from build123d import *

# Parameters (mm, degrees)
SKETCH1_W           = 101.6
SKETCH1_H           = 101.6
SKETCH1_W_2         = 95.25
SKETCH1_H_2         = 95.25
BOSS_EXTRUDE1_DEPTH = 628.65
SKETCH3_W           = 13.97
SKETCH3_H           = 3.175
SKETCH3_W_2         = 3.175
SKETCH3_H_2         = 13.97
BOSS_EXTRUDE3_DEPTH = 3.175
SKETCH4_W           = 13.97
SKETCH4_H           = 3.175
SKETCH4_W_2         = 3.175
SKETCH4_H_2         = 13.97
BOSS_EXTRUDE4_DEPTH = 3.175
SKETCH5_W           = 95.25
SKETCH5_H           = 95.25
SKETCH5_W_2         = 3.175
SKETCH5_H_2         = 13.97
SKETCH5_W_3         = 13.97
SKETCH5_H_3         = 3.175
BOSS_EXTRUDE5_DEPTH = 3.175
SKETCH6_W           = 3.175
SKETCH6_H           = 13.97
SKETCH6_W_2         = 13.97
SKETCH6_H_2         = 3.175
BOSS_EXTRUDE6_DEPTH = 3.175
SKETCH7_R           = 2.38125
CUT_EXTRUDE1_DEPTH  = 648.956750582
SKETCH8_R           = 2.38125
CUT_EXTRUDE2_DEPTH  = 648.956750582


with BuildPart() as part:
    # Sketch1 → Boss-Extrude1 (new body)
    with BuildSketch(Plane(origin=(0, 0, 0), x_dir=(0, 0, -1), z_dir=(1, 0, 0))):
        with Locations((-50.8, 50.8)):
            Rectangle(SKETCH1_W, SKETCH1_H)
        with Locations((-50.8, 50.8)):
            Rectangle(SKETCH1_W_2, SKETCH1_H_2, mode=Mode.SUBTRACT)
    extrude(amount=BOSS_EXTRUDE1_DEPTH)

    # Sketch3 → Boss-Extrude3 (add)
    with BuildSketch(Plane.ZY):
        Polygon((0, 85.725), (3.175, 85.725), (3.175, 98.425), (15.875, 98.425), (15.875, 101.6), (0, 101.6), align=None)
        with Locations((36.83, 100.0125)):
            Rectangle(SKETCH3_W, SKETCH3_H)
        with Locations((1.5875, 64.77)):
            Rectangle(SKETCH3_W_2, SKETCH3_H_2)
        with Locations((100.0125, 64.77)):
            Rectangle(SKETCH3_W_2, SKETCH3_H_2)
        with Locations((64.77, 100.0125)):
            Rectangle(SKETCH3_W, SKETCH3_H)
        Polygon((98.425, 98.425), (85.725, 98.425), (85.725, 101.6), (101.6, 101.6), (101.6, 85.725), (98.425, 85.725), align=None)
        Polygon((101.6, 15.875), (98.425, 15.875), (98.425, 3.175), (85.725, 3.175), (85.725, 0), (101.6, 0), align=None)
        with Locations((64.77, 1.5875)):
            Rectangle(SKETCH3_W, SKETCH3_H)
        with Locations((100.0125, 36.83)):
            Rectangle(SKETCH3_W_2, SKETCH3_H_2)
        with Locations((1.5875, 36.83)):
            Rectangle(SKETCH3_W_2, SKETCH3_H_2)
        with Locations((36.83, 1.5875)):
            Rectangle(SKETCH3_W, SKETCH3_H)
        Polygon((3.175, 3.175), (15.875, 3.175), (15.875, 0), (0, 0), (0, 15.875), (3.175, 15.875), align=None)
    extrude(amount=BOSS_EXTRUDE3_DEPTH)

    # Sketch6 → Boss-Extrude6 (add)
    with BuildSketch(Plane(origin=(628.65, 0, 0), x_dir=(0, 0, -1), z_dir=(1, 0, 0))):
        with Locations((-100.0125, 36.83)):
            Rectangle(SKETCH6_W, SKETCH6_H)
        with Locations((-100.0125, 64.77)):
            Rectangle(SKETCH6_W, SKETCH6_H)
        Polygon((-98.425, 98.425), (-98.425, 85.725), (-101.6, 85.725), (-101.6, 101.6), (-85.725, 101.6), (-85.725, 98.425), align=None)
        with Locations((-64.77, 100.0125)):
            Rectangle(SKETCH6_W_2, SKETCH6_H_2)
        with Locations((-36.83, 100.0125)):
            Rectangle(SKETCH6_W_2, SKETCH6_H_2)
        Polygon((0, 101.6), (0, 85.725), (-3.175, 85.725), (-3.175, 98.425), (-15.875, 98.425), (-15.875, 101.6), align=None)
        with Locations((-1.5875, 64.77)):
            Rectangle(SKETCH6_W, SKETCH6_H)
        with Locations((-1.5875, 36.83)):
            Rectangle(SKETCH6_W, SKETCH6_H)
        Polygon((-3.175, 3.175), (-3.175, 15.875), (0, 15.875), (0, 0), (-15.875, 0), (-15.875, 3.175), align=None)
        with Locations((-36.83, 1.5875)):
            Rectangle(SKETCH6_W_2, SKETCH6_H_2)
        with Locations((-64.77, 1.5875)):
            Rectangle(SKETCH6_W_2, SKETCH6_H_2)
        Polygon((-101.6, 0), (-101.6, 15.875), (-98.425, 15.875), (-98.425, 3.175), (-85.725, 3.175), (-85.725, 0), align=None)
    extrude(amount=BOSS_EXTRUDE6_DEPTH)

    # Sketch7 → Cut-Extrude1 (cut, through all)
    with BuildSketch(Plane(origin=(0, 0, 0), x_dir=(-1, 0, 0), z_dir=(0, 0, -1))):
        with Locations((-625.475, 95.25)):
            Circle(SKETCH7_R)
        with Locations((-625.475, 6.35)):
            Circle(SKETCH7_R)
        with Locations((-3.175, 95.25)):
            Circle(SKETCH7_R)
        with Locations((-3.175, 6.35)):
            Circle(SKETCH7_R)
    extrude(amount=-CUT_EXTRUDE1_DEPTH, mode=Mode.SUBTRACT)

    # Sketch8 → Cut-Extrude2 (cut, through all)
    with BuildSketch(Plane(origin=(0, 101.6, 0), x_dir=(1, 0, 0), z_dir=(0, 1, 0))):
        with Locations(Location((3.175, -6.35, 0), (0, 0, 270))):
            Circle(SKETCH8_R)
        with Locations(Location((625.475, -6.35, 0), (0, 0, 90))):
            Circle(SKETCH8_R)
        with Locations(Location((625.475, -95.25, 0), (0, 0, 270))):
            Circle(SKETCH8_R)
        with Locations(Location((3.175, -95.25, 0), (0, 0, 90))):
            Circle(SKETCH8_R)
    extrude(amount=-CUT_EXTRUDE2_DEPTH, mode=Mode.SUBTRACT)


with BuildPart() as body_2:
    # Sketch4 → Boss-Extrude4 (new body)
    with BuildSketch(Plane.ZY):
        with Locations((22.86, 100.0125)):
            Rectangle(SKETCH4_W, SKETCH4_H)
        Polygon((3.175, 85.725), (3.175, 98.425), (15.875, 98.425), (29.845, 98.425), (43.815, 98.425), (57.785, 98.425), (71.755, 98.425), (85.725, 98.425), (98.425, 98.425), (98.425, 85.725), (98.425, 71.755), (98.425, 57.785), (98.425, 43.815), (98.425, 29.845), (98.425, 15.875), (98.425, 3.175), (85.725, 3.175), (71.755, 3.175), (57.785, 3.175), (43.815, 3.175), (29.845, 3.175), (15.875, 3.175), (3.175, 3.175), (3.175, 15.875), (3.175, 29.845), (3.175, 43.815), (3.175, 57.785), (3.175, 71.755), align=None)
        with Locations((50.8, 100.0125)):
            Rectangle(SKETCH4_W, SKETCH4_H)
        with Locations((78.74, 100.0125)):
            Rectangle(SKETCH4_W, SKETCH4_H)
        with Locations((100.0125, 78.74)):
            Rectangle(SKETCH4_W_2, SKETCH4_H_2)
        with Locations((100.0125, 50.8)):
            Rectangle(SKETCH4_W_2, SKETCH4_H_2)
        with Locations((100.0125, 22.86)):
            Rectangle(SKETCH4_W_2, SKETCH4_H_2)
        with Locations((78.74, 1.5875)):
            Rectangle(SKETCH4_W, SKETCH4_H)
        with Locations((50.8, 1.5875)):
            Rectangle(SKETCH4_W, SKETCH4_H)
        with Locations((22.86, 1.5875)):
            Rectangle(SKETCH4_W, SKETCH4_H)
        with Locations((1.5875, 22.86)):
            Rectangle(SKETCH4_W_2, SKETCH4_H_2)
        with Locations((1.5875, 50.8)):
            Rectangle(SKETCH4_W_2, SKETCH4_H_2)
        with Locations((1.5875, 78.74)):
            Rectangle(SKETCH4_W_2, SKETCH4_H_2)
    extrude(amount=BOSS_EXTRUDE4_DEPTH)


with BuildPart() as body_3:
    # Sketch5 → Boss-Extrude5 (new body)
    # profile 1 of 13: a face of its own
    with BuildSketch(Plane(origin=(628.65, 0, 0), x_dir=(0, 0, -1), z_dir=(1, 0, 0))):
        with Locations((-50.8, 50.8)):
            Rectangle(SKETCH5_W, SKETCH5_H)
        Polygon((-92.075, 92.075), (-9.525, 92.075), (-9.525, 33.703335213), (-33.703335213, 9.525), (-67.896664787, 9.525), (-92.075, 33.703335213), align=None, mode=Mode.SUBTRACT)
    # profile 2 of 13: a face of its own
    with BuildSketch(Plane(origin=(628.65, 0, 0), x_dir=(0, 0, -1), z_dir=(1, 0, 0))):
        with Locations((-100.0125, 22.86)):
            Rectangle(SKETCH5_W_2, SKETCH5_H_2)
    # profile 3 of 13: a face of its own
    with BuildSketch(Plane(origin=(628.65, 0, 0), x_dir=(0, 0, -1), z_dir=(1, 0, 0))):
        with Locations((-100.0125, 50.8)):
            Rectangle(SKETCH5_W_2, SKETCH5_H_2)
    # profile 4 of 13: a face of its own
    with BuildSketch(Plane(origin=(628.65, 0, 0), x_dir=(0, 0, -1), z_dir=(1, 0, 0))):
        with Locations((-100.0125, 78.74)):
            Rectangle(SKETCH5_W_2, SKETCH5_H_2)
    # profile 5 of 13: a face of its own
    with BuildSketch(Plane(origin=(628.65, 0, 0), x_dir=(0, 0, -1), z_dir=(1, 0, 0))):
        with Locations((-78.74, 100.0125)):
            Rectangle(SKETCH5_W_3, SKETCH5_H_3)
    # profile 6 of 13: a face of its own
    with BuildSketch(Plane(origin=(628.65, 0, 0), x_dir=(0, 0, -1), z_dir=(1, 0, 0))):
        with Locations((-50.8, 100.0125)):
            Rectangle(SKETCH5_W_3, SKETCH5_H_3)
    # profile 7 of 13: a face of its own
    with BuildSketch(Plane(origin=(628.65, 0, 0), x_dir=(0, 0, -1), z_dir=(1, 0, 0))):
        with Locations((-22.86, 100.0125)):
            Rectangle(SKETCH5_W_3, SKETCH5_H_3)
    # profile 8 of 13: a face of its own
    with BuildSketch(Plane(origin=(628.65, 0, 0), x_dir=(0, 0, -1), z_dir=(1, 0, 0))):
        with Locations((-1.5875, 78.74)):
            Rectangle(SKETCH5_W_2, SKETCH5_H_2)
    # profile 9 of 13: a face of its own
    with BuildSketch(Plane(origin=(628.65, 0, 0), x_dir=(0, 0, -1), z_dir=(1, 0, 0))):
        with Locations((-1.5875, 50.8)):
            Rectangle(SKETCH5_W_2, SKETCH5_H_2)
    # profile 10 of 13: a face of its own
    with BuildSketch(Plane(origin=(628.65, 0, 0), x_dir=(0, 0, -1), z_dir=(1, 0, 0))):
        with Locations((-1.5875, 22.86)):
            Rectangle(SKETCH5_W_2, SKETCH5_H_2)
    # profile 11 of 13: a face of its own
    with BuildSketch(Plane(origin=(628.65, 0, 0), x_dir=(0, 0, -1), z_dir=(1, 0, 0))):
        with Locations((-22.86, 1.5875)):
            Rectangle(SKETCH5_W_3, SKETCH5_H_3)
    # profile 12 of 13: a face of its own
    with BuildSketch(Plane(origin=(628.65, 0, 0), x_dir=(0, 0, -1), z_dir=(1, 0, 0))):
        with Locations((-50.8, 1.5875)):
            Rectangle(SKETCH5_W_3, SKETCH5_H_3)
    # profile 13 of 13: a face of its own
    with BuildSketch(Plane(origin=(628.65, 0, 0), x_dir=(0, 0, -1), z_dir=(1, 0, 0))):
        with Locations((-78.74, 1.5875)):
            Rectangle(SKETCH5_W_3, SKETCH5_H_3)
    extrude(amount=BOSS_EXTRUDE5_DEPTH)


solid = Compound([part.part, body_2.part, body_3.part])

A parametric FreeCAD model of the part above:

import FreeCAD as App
import Part
import Sketcher

V = App.Vector
Q = App.Units.Quantity


def add_polygon(sketch, points):
    """Adds a closed chain of lines whose ends are joined by coincident constraints."""
    first, n = sketch.GeometryCount, len(points)
    for a, b in zip(points, points[1:] + points[:1]):
        sketch.addGeometry(Part.LineSegment(App.Vector(*a, 0), App.Vector(*b, 0)), False)
    for i in range(n):
        sketch.addConstraint(Sketcher.Constraint("Coincident", first + i, 2, first + (i + 1) % n, 1))

doc = App.newDocument("Part")
body = doc.addObject("PartDesign::Body", "Body")

# Sketch on YZ plane
sketch1 = body.newObject("Sketcher::SketchObject", "Sketch")
sketch1.AttachmentSupport = (doc.getObject("YZ_Plane"), [""])
sketch1.MapMode = "FlatFace"
add_polygon(sketch1, [(101.6, 101.6), (0, 101.6), (0, 0), (101.6, 0)])  # lines 0-3
add_polygon(sketch1, [(3.175, 3.175), (3.175, 98.425), (98.425, 98.425), (98.425, 3.175)])  # lines 4-7
sketch1.addConstraint(Sketcher.Constraint("Horizontal", 0))
sketch1.addConstraint(Sketcher.Constraint("Vertical", 1))
sketch1.addConstraint(Sketcher.Constraint("Horizontal", 2))
sketch1.addConstraint(Sketcher.Constraint("Vertical", 3))
sketch1.addConstraint(Sketcher.Constraint("Vertical", 4))
sketch1.addConstraint(Sketcher.Constraint("Horizontal", 5))
sketch1.addConstraint(Sketcher.Constraint("Vertical", 6))
sketch1.addConstraint(Sketcher.Constraint("Horizontal", 7))
sketch1.addConstraint(Sketcher.Constraint("Coincident", 1, 2, -1, 1))
sketch1.addConstraint(Sketcher.Constraint("Equal", 2, 1))
sketch1.addConstraint(Sketcher.Constraint("Equal", 7, 4))
sketch1.addConstraint(Sketcher.Constraint("DistanceX", 0, 2, 0, 1, Q("4 in")))
sketch1.addConstraint(Sketcher.Constraint("DistanceX", 5, 1, 5, 2, Q("3.75 in")))
sketch1.addConstraint(Sketcher.Constraint("DistanceX", -1, 1, 4, 2, Q("0.125 in")))
sketch1.addConstraint(Sketcher.Constraint("DistanceY", -1, 1, 4, 2, Q("3.875 in")))
pad1 = body.newObject("PartDesign::Pad", "Pad")
pad1.Profile = sketch1
pad1.Length = Q("24.75 in")

# Sketch on YZ plane
sketch2 = body.newObject("Sketcher::SketchObject", "Sketch001")
sketch2.AttachmentSupport = (doc.getObject("YZ_Plane"), [""])
sketch2.MapMode = "FlatFace"
add_polygon(sketch2, [(85.725, 0), (85.725, 3.175), (98.425, 3.175), (98.425, 15.875), (101.6, 15.875), (101.6, 0)])  # lines 0-5
add_polygon(sketch2, [(101.6, 29.845), (98.425, 29.845), (98.425, 43.815), (101.6, 43.815)])  # lines 6-9
add_polygon(sketch2, [(71.755, 0), (57.785, 0), (57.785, 3.175), (71.755, 3.175)])  # lines 10-13
add_polygon(sketch2, [(71.755, 98.425), (57.785, 98.425), (57.785, 101.6), (71.755, 101.6)])  # lines 14-17
add_polygon(sketch2, [(101.6, 57.785), (98.425, 57.785), (98.425, 71.755), (101.6, 71.755)])  # lines 18-21
add_polygon(sketch2, [(98.425, 85.725), (98.425, 98.425), (85.725, 98.425), (85.725, 101.6), (101.6, 101.6), (101.6, 85.725)])  # lines 22-27
add_polygon(sketch2, [(15.875, 101.6), (15.875, 98.425), (3.175, 98.425), (3.175, 85.725), (0, 85.725), (0, 101.6)])  # lines 28-33
add_polygon(sketch2, [(3.175, 57.785), (0, 57.785), (0, 71.755), (3.175, 71.755)])  # lines 34-37
add_polygon(sketch2, [(43.815, 98.425), (29.845, 98.425), (29.845, 101.6), (43.815, 101.6)])  # lines 38-41
add_polygon(sketch2, [(43.815, 0), (29.845, 0), (29.845, 3.175), (43.815, 3.175)])  # lines 42-45
add_polygon(sketch2, [(3.175, 29.845), (0, 29.845), (0, 43.815), (3.175, 43.815)])  # lines 46-49
add_polygon(sketch2, [(3.175, 15.875), (3.175, 3.175), (15.875, 3.175), (15.875, 0), (0, 0), (0, 15.875)])  # lines 50-55
sketch2.addConstraint(Sketcher.Constraint("Vertical", 0))
sketch2.addConstraint(Sketcher.Constraint("Horizontal", 1))
sketch2.addConstraint(Sketcher.Constraint("Vertical", 2))
sketch2.addConstraint(Sketcher.Constraint("Horizontal", 3))
sketch2.addConstraint(Sketcher.Constraint("Vertical", 4))
sketch2.addConstraint(Sketcher.Constraint("Horizontal", 5))
sketch2.addConstraint(Sketcher.Constraint("Horizontal", 6))
sketch2.addConstraint(Sketcher.Constraint("Vertical", 7))
sketch2.addConstraint(Sketcher.Constraint("Horizontal", 8))
sketch2.addConstraint(Sketcher.Constraint("Vertical", 9))
sketch2.addConstraint(Sketcher.Constraint("Horizontal", 10))
sketch2.addConstraint(Sketcher.Constraint("Vertical", 11))
sketch2.addConstraint(Sketcher.Constraint("Horizontal", 12))
sketch2.addConstraint(Sketcher.Constraint("Vertical", 13))
sketch2.addConstraint(Sketcher.Constraint("Horizontal", 14))
sketch2.addConstraint(Sketcher.Constraint("Vertical", 15))
sketch2.addConstraint(Sketcher.Constraint("Horizontal", 16))
sketch2.addConstraint(Sketcher.Constraint("Vertical", 17))
sketch2.addConstraint(Sketcher.Constraint("Horizontal", 18))
sketch2.addConstraint(Sketcher.Constraint("Vertical", 19))
sketch2.addConstraint(Sketcher.Constraint("Horizontal", 20))
sketch2.addConstraint(Sketcher.Constraint("Vertical", 21))
sketch2.addConstraint(Sketcher.Constraint("Vertical", 22))
sketch2.addConstraint(Sketcher.Constraint("Horizontal", 23))
sketch2.addConstraint(Sketcher.Constraint("Vertical", 24))
sketch2.addConstraint(Sketcher.Constraint("Horizontal", 25))
sketch2.addConstraint(Sketcher.Constraint("Vertical", 26))
sketch2.addConstraint(Sketcher.Constraint("Horizontal", 27))
sketch2.addConstraint(Sketcher.Constraint("Vertical", 28))
sketch2.addConstraint(Sketcher.Constraint("Horizontal", 29))
sketch2.addConstraint(Sketcher.Constraint("Vertical", 30))
sketch2.addConstraint(Sketcher.Constraint("Horizontal", 31))
sketch2.addConstraint(Sketcher.Constraint("Vertical", 32))
sketch2.addConstraint(Sketcher.Constraint("Horizontal", 33))
sketch2.addConstraint(Sketcher.Constraint("Horizontal", 34))
sketch2.addConstraint(Sketcher.Constraint("Vertical", 35))
sketch2.addConstraint(Sketcher.Constraint("Horizontal", 36))
sketch2.addConstraint(Sketcher.Constraint("Vertical", 37))
sketch2.addConstraint(Sketcher.Constraint("Horizontal", 38))
sketch2.addConstraint(Sketcher.Constraint("Vertical", 39))
sketch2.addConstraint(Sketcher.Constraint("Horizontal", 40))
sketch2.addConstraint(Sketcher.Constraint("Vertical", 41))
sketch2.addConstraint(Sketcher.Constraint("Horizontal", 42))
sketch2.addConstraint(Sketcher.Constraint("Vertical", 43))
sketch2.addConstraint(Sketcher.Constraint("Horizontal", 44))
sketch2.addConstraint(Sketcher.Constraint("Vertical", 45))
sketch2.addConstraint(Sketcher.Constraint("Horizontal", 46))
sketch2.addConstraint(Sketcher.Constraint("Vertical", 47))
sketch2.addConstraint(Sketcher.Constraint("Horizontal", 48))
sketch2.addConstraint(Sketcher.Constraint("Vertical", 49))
sketch2.addConstraint(Sketcher.Constraint("Vertical", 50))
sketch2.addConstraint(Sketcher.Constraint("Horizontal", 51))
sketch2.addConstraint(Sketcher.Constraint("Vertical", 52))
sketch2.addConstraint(Sketcher.Constraint("Horizontal", 53))
sketch2.addConstraint(Sketcher.Constraint("Vertical", 54))
sketch2.addConstraint(Sketcher.Constraint("Horizontal", 55))
sketch2.addConstraint(Sketcher.Constraint("Coincident", 53, 2, -1, 1))
sketch2.addConstraint(Sketcher.Constraint("PointOnObject", 4, 2, -1))
sketch2.addConstraint(Sketcher.Constraint("PointOnObject", 10, 2, -1))
sketch2.addConstraint(Sketcher.Constraint("PointOnObject", 31, 2, -2))
sketch2.addConstraint(Sketcher.Constraint("PointOnObject", 34, 2, -2))
sketch2.addConstraint(Sketcher.Constraint("PointOnObject", 42, 2, -1))
sketch2.addConstraint(Sketcher.Constraint("PointOnObject", 46, 2, -2))
sketch2.addConstraint(Sketcher.Constraint("Horizontal", 1, 2, 11, 2))
sketch2.addConstraint(Sketcher.Constraint("Horizontal", 17, 2, 22, 2))
sketch2.addConstraint(Sketcher.Constraint("Horizontal", 16, 2, 24, 2))
sketch2.addConstraint(Sketcher.Constraint("Horizontal", 23, 2, 28, 2))
sketch2.addConstraint(Sketcher.Constraint("Horizontal", 27, 2, 30, 2))
sketch2.addConstraint(Sketcher.Constraint("Horizontal", 25, 2, 32, 2))
sketch2.addConstraint(Sketcher.Constraint("Horizontal", 21, 2, 34, 2))
sketch2.addConstraint(Sketcher.Constraint("Horizontal", 20, 2, 35, 2))
sketch2.addConstraint(Sketcher.Constraint("Horizontal", 29, 2, 38, 2))
sketch2.addConstraint(Sketcher.Constraint("Horizontal", 33, 2, 39, 2))
sketch2.addConstraint(Sketcher.Constraint("Horizontal", 12, 2, 43, 2))
sketch2.addConstraint(Sketcher.Constraint("Horizontal", 9, 2, 46, 2))
sketch2.addConstraint(Sketcher.Constraint("Horizontal", 8, 2, 47, 2))
sketch2.addConstraint(Sketcher.Constraint("Horizontal", 44, 2, 50, 2))
sketch2.addConstraint(Sketcher.Constraint("Horizontal", 3, 2, 54, 2))
sketch2.addConstraint(Sketcher.Constraint("Vertical", 2, 2, 6, 2))
sketch2.addConstraint(Sketcher.Constraint("Vertical", 4, 2, 8, 2))
sketch2.addConstraint(Sketcher.Constraint("Vertical", 11, 2, 14, 2))
sketch2.addConstraint(Sketcher.Constraint("Vertical", 13, 2, 16, 2))
sketch2.addConstraint(Sketcher.Constraint("Vertical", 7, 2, 18, 2))
sketch2.addConstraint(Sketcher.Constraint("Vertical", 9, 2, 20, 2))
sketch2.addConstraint(Sketcher.Constraint("Vertical", 19, 2, 22, 2))
sketch2.addConstraint(Sketcher.Constraint("Vertical", 5, 2, 23, 2))
sketch2.addConstraint(Sketcher.Constraint("Vertical", 21, 2, 25, 2))
sketch2.addConstraint(Sketcher.Constraint("Vertical", 30, 2, 36, 2))
sketch2.addConstraint(Sketcher.Constraint("Vertical", 39, 2, 42, 2))
sketch2.addConstraint(Sketcher.Constraint("Vertical", 41, 2, 44, 2))
sketch2.addConstraint(Sketcher.Constraint("Vertical", 37, 2, 48, 2))
sketch2.addConstraint(Sketcher.Constraint("Vertical", 49, 2, 50, 2))
sketch2.addConstraint(Sketcher.Constraint("Vertical", 33, 2, 51, 2))
sketch2.addConstraint(Sketcher.Constraint("Equal", 23, 29))
sketch2.addConstraint(Sketcher.Constraint("Equal", 27, 31))
sketch2.addConstraint(Sketcher.Constraint("Equal", 16, 38))
sketch2.addConstraint(Sketcher.Constraint("Equal", 55, 0))
sketch2.addConstraint(Sketcher.Constraint("Equal", 51, 2))
sketch2.addConstraint(Sketcher.Constraint("Equal", 44, 7))
sketch2.addConstraint(Sketcher.Constraint("Equal", 13, 15))
sketch2.addConstraint(Sketcher.Constraint("Equal", 9, 19))
sketch2.addConstraint(Sketcher.Constraint("Equal", 2, 22))
sketch2.addConstraint(Sketcher.Constraint("DistanceX", 1, 1, 1, 2, Q("0.5 in")))
sketch2.addConstraint(Sketcher.Constraint("DistanceX", -1, 1, 3, 2, Q("4 in")))
sketch2.addConstraint(Sketcher.Constraint("DistanceY", -1, 1, 15, 2, Q("4 in")))
sketch2.addConstraint(Sketcher.Constraint("DistanceX", 10, 2, 10, 1, Q("0.55 in")))
sketch2.addConstraint(Sketcher.Constraint("DistanceY", 2, 2, 7, 2, Q("1.1 in")))
sketch2.addConstraint(Sketcher.Constraint("DistanceX", 10, 2, 5, 2, Q("1.1 in")))
sketch2.addConstraint(Sketcher.Constraint("DistanceY", 6, 2, 14, 2, Q("2.7 in")))
sketch2.addConstraint(Sketcher.Constraint("DistanceY", 6, 2, 18, 2, Q("1.1 in")))
sketch2.addConstraint(Sketcher.Constraint("DistanceX", 38, 2, 14, 2, Q("1.1 in")))
pad2 = body.newObject("PartDesign::Pad", "Pad001")
pad2.Profile = sketch2
pad2.Length = Q("0.125 in")
pad2.Reversed = True

# Sketch on YZ plane
sketch3 = body.newObject("Sketcher::SketchObject", "Sketch002")
sketch3.AttachmentSupport = (doc.getObject("YZ_Plane"), [""])
sketch3.MapMode = "FlatFace"
sketch3.AttachmentOffset = App.Placement(V(0, 0, 24.75 * 25.4), App.Rotation())
add_polygon(sketch3, [(43.815, 101.6), (29.845, 101.6), (29.845, 98.425), (43.815, 98.425)])  # lines 0-3
add_polygon(sketch3, [(71.755, 101.6), (57.785, 101.6), (57.785, 98.425), (71.755, 98.425)])  # lines 4-7
add_polygon(sketch3, [(85.725, 98.425), (98.425, 98.425), (98.425, 85.725), (101.6, 85.725), (101.6, 101.6), (85.725, 101.6)])  # lines 8-13
add_polygon(sketch3, [(101.6, 71.755), (98.425, 71.755), (98.425, 57.785), (101.6, 57.785)])  # lines 14-17
add_polygon(sketch3, [(101.6, 43.815), (98.425, 43.815), (98.425, 29.845), (101.6, 29.845)])  # lines 18-21
add_polygon(sketch3, [(85.725, 0), (101.6, 0), (101.6, 15.875), (98.425, 15.875), (98.425, 3.175), (85.725, 3.175)])  # lines 22-27
add_polygon(sketch3, [(71.755, 3.175), (57.785, 3.175), (57.785, 0), (71.755, 0)])  # lines 28-31
add_polygon(sketch3, [(43.815, 3.175), (29.845, 3.175), (29.845, 0), (43.815, 0)])  # lines 32-35
add_polygon(sketch3, [(15.875, 3.175), (3.175, 3.175), (3.175, 15.875), (0, 15.875), (0, 0), (15.875, 0)])  # lines 36-41
add_polygon(sketch3, [(3.175, 43.815), (0, 43.815), (0, 29.845), (3.175, 29.845)])  # lines 42-45
add_polygon(sketch3, [(3.175, 71.755), (0, 71.755), (0, 57.785), (3.175, 57.785)])  # lines 46-49
add_polygon(sketch3, [(15.875, 101.6), (0, 101.6), (0, 85.725), (3.175, 85.725), (3.175, 98.425), (15.875, 98.425)])  # lines 50-55
sketch3.addConstraint(Sketcher.Constraint("Horizontal", 0))
sketch3.addConstraint(Sketcher.Constraint("Vertical", 1))
sketch3.addConstraint(Sketcher.Constraint("Horizontal", 2))
sketch3.addConstraint(Sketcher.Constraint("Vertical", 3))
sketch3.addConstraint(Sketcher.Constraint("Horizontal", 4))
sketch3.addConstraint(Sketcher.Constraint("Vertical", 5))
sketch3.addConstraint(Sketcher.Constraint("Horizontal", 6))
sketch3.addConstraint(Sketcher.Constraint("Vertical", 7))
sketch3.addConstraint(Sketcher.Constraint("Horizontal", 8))
sketch3.addConstraint(Sketcher.Constraint("Vertical", 9))
sketch3.addConstraint(Sketcher.Constraint("Horizontal", 10))
sketch3.addConstraint(Sketcher.Constraint("Vertical", 11))
sketch3.addConstraint(Sketcher.Constraint("Horizontal", 12))
sketch3.addConstraint(Sketcher.Constraint("Vertical", 13))
sketch3.addConstraint(Sketcher.Constraint("Horizontal", 14))
sketch3.addConstraint(Sketcher.Constraint("Vertical", 15))
sketch3.addConstraint(Sketcher.Constraint("Horizontal", 16))
sketch3.addConstraint(Sketcher.Constraint("Vertical", 17))
sketch3.addConstraint(Sketcher.Constraint("Horizontal", 18))
sketch3.addConstraint(Sketcher.Constraint("Vertical", 19))
sketch3.addConstraint(Sketcher.Constraint("Horizontal", 20))
sketch3.addConstraint(Sketcher.Constraint("Vertical", 21))
sketch3.addConstraint(Sketcher.Constraint("Horizontal", 22))
sketch3.addConstraint(Sketcher.Constraint("Vertical", 23))
sketch3.addConstraint(Sketcher.Constraint("Horizontal", 24))
sketch3.addConstraint(Sketcher.Constraint("Vertical", 25))
sketch3.addConstraint(Sketcher.Constraint("Horizontal", 26))
sketch3.addConstraint(Sketcher.Constraint("Vertical", 27))
sketch3.addConstraint(Sketcher.Constraint("Horizontal", 28))
sketch3.addConstraint(Sketcher.Constraint("Vertical", 29))
sketch3.addConstraint(Sketcher.Constraint("Horizontal", 30))
sketch3.addConstraint(Sketcher.Constraint("Vertical", 31))
sketch3.addConstraint(Sketcher.Constraint("Horizontal", 32))
sketch3.addConstraint(Sketcher.Constraint("Vertical", 33))
sketch3.addConstraint(Sketcher.Constraint("Horizontal", 34))
sketch3.addConstraint(Sketcher.Constraint("Vertical", 35))
sketch3.addConstraint(Sketcher.Constraint("Horizontal", 36))
sketch3.addConstraint(Sketcher.Constraint("Vertical", 37))
sketch3.addConstraint(Sketcher.Constraint("Horizontal", 38))
sketch3.addConstraint(Sketcher.Constraint("Vertical", 39))
sketch3.addConstraint(Sketcher.Constraint("Horizontal", 40))
sketch3.addConstraint(Sketcher.Constraint("Vertical", 41))
sketch3.addConstraint(Sketcher.Constraint("Horizontal", 42))
sketch3.addConstraint(Sketcher.Constraint("Vertical", 43))
sketch3.addConstraint(Sketcher.Constraint("Horizontal", 44))
sketch3.addConstraint(Sketcher.Constraint("Vertical", 45))
sketch3.addConstraint(Sketcher.Constraint("Horizontal", 46))
sketch3.addConstraint(Sketcher.Constraint("Vertical", 47))
sketch3.addConstraint(Sketcher.Constraint("Horizontal", 48))
sketch3.addConstraint(Sketcher.Constraint("Vertical", 49))
sketch3.addConstraint(Sketcher.Constraint("Horizontal", 50))
sketch3.addConstraint(Sketcher.Constraint("Vertical", 51))
sketch3.addConstraint(Sketcher.Constraint("Horizontal", 52))
sketch3.addConstraint(Sketcher.Constraint("Vertical", 53))
sketch3.addConstraint(Sketcher.Constraint("Horizontal", 54))
sketch3.addConstraint(Sketcher.Constraint("Vertical", 55))
sketch3.addConstraint(Sketcher.Constraint("Coincident", 39, 2, -1, 1))
sketch3.addConstraint(Sketcher.Constraint("PointOnObject", 22, 2, -1))
sketch3.addConstraint(Sketcher.Constraint("PointOnObject", 29, 2, -1))
sketch3.addConstraint(Sketcher.Constraint("PointOnObject", 33, 2, -1))
sketch3.addConstraint(Sketcher.Constraint("PointOnObject", 42, 2, -2))
sketch3.addConstraint(Sketcher.Constraint("PointOnObject", 46, 2, -2))
sketch3.addConstraint(Sketcher.Constraint("PointOnObject", 50, 2, -2))
sketch3.addConstraint(Sketcher.Constraint("Horizontal", 3, 2, 4, 2))
sketch3.addConstraint(Sketcher.Constraint("Horizontal", 2, 2, 5, 2))
sketch3.addConstraint(Sketcher.Constraint("Horizontal", 6, 2, 8, 2))
sketch3.addConstraint(Sketcher.Constraint("Horizontal", 7, 2, 11, 2))
sketch3.addConstraint(Sketcher.Constraint("Horizontal", 26, 2, 28, 2))
sketch3.addConstraint(Sketcher.Constraint("Horizontal", 31, 2, 32, 2))
sketch3.addConstraint(Sketcher.Constraint("Horizontal", 35, 2, 36, 2))
sketch3.addConstraint(Sketcher.Constraint("Horizontal", 24, 2, 37, 2))
sketch3.addConstraint(Sketcher.Constraint("Horizontal", 21, 2, 42, 2))
sketch3.addConstraint(Sketcher.Constraint("Horizontal", 20, 2, 43, 2))
sketch3.addConstraint(Sketcher.Constraint("Horizontal", 17, 2, 46, 2))
sketch3.addConstraint(Sketcher.Constraint("Horizontal", 16, 2, 47, 2))
sketch3.addConstraint(Sketcher.Constraint("Horizontal", 12, 2, 50, 2))
sketch3.addConstraint(Sketcher.Constraint("Horizontal", 10, 2, 51, 2))
sketch3.addConstraint(Sketcher.Constraint("Horizontal", 13, 2, 53, 2))
sketch3.addConstraint(Sketcher.Constraint("Vertical", 9, 2, 14, 2))
sketch3.addConstraint(Sketcher.Constraint("Vertical", 11, 2, 16, 2))
sketch3.addConstraint(Sketcher.Constraint("Vertical", 15, 2, 18, 2))
sketch3.addConstraint(Sketcher.Constraint("Vertical", 17, 2, 20, 2))
sketch3.addConstraint(Sketcher.Constraint("Vertical", 21, 2, 22, 2))
sketch3.addConstraint(Sketcher.Constraint("Vertical", 19, 2, 24, 2))
sketch3.addConstraint(Sketcher.Constraint("Vertical", 13, 2, 26, 2))
sketch3.addConstraint(Sketcher.Constraint("Vertical", 5, 2, 28, 2))
sketch3.addConstraint(Sketcher.Constraint("Vertical", 7, 2, 30, 2))
sketch3.addConstraint(Sketcher.Constraint("Vertical", 1, 2, 32, 2))
sketch3.addConstraint(Sketcher.Constraint("Vertical", 3, 2, 34, 2))
sketch3.addConstraint(Sketcher.Constraint("Vertical", 37, 2, 44, 2))
sketch3.addConstraint(Sketcher.Constraint("Vertical", 45, 2, 48, 2))
sketch3.addConstraint(Sketcher.Constraint("Vertical", 49, 2, 52, 2))
sketch3.addConstraint(Sketcher.Constraint("Vertical", 41, 2, 54, 2))
sketch3.addConstraint(Sketcher.Constraint("Equal", 2, 4))
sketch3.addConstraint(Sketcher.Constraint("Equal", 26, 36))
sketch3.addConstraint(Sketcher.Constraint("Equal", 24, 38))
sketch3.addConstraint(Sketcher.Constraint("Equal", 52, 1))
sketch3.addConstraint(Sketcher.Constraint("Equal", 54, 9))
sketch3.addConstraint(Sketcher.Constraint("Equal", 34, 15))
sketch3.addConstraint(Sketcher.Constraint("Equal", 17, 19))
sketch3.addConstraint(Sketcher.Constraint("Equal", 11, 23))
sketch3.addConstraint(Sketcher.Constraint("Equal", 9, 25))
sketch3.addConstraint(Sketcher.Constraint("DistanceX", 8, 1, 8, 2, Q("0.5 in")))
sketch3.addConstraint(Sketcher.Constraint("DistanceY", -1, 1, 0, 2, Q("4 in")))
sketch3.addConstraint(Sketcher.Constraint("DistanceX", -1, 1, 10, 2, Q("4 in")))
sketch3.addConstraint(Sketcher.Constraint("DistanceX", 0, 2, 0, 1, Q("0.55 in")))
sketch3.addConstraint(Sketcher.Constraint("DistanceX", 0, 2, 4, 2, Q("1.1 in")))
sketch3.addConstraint(Sketcher.Constraint("DistanceX", 5, 2, 8, 2, Q("1.6 in")))
sketch3.addConstraint(Sketcher.Constraint("DistanceY", 15, 2, 9, 2, Q("1.1 in")))
sketch3.addConstraint(Sketcher.Constraint("DistanceY", 18, 2, 14, 2, Q("1.1 in")))
sketch3.addConstraint(Sketcher.Constraint("DistanceY", 23, 2, 21, 2, Q("1.1 in")))
pad3 = body.newObject("PartDesign::Pad", "Pad002")
pad3.Profile = sketch3
pad3.Length = Q("0.125 in")

# Sketch on XY plane
sketch4 = body.newObject("Sketcher::SketchObject", "Sketch003")
sketch4.AttachmentSupport = (doc.getObject("XY_Plane"), [""])
sketch4.MapMode = "FlatFace"
sketch4.addGeometry(Part.Circle(V(625.475, 95.25, 0), V(0, 0, 1), 2.38125), False)
sketch4.addGeometry(Part.Circle(V(625.475, 6.35, 0), V(0, 0, 1), 2.38125), False)
sketch4.addGeometry(Part.Circle(V(3.175, 95.25, 0), V(0, 0, 1), 2.38125), False)
sketch4.addGeometry(Part.Circle(V(3.175, 6.35, 0), V(0, 0, 1), 2.38125), False)
sketch4.addConstraint(Sketcher.Constraint("Equal", 0, 1))
sketch4.addConstraint(Sketcher.Constraint("Equal", 1, 2))
sketch4.addConstraint(Sketcher.Constraint("Equal", 2, 3))
sketch4.addConstraint(Sketcher.Constraint("Horizontal", 0, 3, 2, 3))
sketch4.addConstraint(Sketcher.Constraint("Horizontal", 1, 3, 3, 3))
sketch4.addConstraint(Sketcher.Constraint("Vertical", 0, 3, 1, 3))
sketch4.addConstraint(Sketcher.Constraint("Vertical", 2, 3, 3, 3))
sketch4.addConstraint(Sketcher.Constraint("Diameter", 0, Q("0.1875 in")))
sketch4.addConstraint(Sketcher.Constraint("DistanceY", 1, 3, 0, 3, Q("3.5 in")))
sketch4.addConstraint(Sketcher.Constraint("DistanceX", 2, 3, 0, 3, Q("24.5 in")))
sketch4.addConstraint(Sketcher.Constraint("DistanceY", -1, 1, 0, 3, Q("3.75 in")))
sketch4.addConstraint(Sketcher.Constraint("DistanceX", -1, 1, 0, 3, Q("24.625 in")))
pocket1 = body.newObject("PartDesign::Pocket", "Pocket")
pocket1.Profile = sketch4
pocket1.Type = "ThroughAll"
pocket1.Reversed = True

# Sketch on XZ plane
sketch5 = body.newObject("Sketcher::SketchObject", "Sketch004")
sketch5.AttachmentSupport = (doc.getObject("XZ_Plane"), [""])
sketch5.MapMode = "FlatFace"
sketch5.AttachmentOffset = App.Placement(V(0, 0, -4 * 25.4), App.Rotation())
sketch5.addGeometry(Part.Circle(V(3.175, 6.35, 0), V(0, 0, 1), 2.38125), False)
sketch5.addGeometry(Part.Circle(V(625.475, 6.35, 0), V(0, 0, 1), 2.38125), False)
sketch5.addGeometry(Part.Circle(V(625.475, 95.25, 0), V(0, 0, 1), 2.38125), False)
sketch5.addGeometry(Part.Circle(V(3.175, 95.25, 0), V(0, 0, 1), 2.38125), False)
sketch5.addConstraint(Sketcher.Constraint("Equal", 0, 1))
sketch5.addConstraint(Sketcher.Constraint("Equal", 1, 2))
sketch5.addConstraint(Sketcher.Constraint("Equal", 2, 3))
sketch5.addConstraint(Sketcher.Constraint("Horizontal", 0, 3, 1, 3))
sketch5.addConstraint(Sketcher.Constraint("Horizontal", 2, 3, 3, 3))
sketch5.addConstraint(Sketcher.Constraint("Vertical", 1, 3, 2, 3))
sketch5.addConstraint(Sketcher.Constraint("Vertical", 0, 3, 3, 3))
sketch5.addConstraint(Sketcher.Constraint("Diameter", 0, Q("0.1875 in")))
sketch5.addConstraint(Sketcher.Constraint("DistanceX", 0, 3, 1, 3, Q("24.5 in")))
sketch5.addConstraint(Sketcher.Constraint("DistanceY", 1, 3, 2, 3, Q("3.5 in")))
sketch5.addConstraint(Sketcher.Constraint("DistanceY", -1, 1, 0, 3, Q("0.25 in")))
sketch5.addConstraint(Sketcher.Constraint("DistanceX", -1, 1, 0, 3, Q("0.125 in")))
pocket2 = body.newObject("PartDesign::Pocket", "Pocket001")
pocket2.Profile = sketch5
pocket2.Type = "ThroughAll"
pocket2.Reversed = True
body2 = doc.addObject("PartDesign::Body", "Body001")

# Sketch on YZ plane
sketch6 = body2.newObject("Sketcher::SketchObject", "Sketch005")
sketch6.AttachmentSupport = (doc.getObject("YZ_Plane001"), [""])
sketch6.MapMode = "FlatFace"
add_polygon(sketch6, [(101.6, 15.875), (98.425, 15.875), (98.425, 3.175), (85.725, 3.175), (85.725, 0), (71.755, 0), (71.755, 3.175), (57.785, 3.175), (57.785, 0), (43.815, 0), (43.815, 3.175), (29.845, 3.175), (29.845, 0), (15.875, 0), (15.875, 3.175), (3.175, 3.175), (3.175, 15.875), (0, 15.875), (0, 29.845), (3.175, 29.845), (3.175, 43.815), (0, 43.815), (0, 57.785), (3.175, 57.785), (3.175, 71.755), (0, 71.755), (0, 85.725), (3.175, 85.725), (3.175, 98.425), (15.875, 98.425), (15.875, 101.6), (29.845, 101.6), (29.845, 98.425), (43.815, 98.425), (43.815, 101.6), (57.785, 101.6), (57.785, 98.425), (71.755, 98.425), (71.755, 101.6), (85.725, 101.6), (85.725, 98.425), (98.425, 98.425), (98.425, 85.725), (101.6, 85.725), (101.6, 71.755), (98.425, 71.755), (98.425, 57.785), (101.6, 57.785), (101.6, 43.815), (98.425, 43.815), (98.425, 29.845), (101.6, 29.845)])  # lines 0-51
sketch6.addConstraint(Sketcher.Constraint("Horizontal", 0))
sketch6.addConstraint(Sketcher.Constraint("Vertical", 1))
sketch6.addConstraint(Sketcher.Constraint("Horizontal", 2))
sketch6.addConstraint(Sketcher.Constraint("Vertical", 3))
sketch6.addConstraint(Sketcher.Constraint("Horizontal", 4))
sketch6.addConstraint(Sketcher.Constraint("Vertical", 5))
sketch6.addConstraint(Sketcher.Constraint("Horizontal", 6))
sketch6.addConstraint(Sketcher.Constraint("Vertical", 7))
sketch6.addConstraint(Sketcher.Constraint("Horizontal", 8))
sketch6.addConstraint(Sketcher.Constraint("Vertical", 9))
sketch6.addConstraint(Sketcher.Constraint("Horizontal", 10))
sketch6.addConstraint(Sketcher.Constraint("Vertical", 11))
sketch6.addConstraint(Sketcher.Constraint("Horizontal", 12))
sketch6.addConstraint(Sketcher.Constraint("Vertical", 13))
sketch6.addConstraint(Sketcher.Constraint("Horizontal", 14))
sketch6.addConstraint(Sketcher.Constraint("Vertical", 15))
sketch6.addConstraint(Sketcher.Constraint("Horizontal", 16))
sketch6.addConstraint(Sketcher.Constraint("Vertical", 17))
sketch6.addConstraint(Sketcher.Constraint("Horizontal", 18))
sketch6.addConstraint(Sketcher.Constraint("Vertical", 19))
sketch6.addConstraint(Sketcher.Constraint("Horizontal", 20))
sketch6.addConstraint(Sketcher.Constraint("Vertical", 21))
sketch6.addConstraint(Sketcher.Constraint("Horizontal", 22))
sketch6.addConstraint(Sketcher.Constraint("Vertical", 23))
sketch6.addConstraint(Sketcher.Constraint("Horizontal", 24))
sketch6.addConstraint(Sketcher.Constraint("Vertical", 25))
sketch6.addConstraint(Sketcher.Constraint("Horizontal", 26))
sketch6.addConstraint(Sketcher.Constraint("Vertical", 27))
sketch6.addConstraint(Sketcher.Constraint("Horizontal", 28))
sketch6.addConstraint(Sketcher.Constraint("Vertical", 29))
sketch6.addConstraint(Sketcher.Constraint("Horizontal", 30))
sketch6.addConstraint(Sketcher.Constraint("Vertical", 31))
sketch6.addConstraint(Sketcher.Constraint("Horizontal", 32))
sketch6.addConstraint(Sketcher.Constraint("Vertical", 33))
sketch6.addConstraint(Sketcher.Constraint("Horizontal", 34))
sketch6.addConstraint(Sketcher.Constraint("Vertical", 35))
sketch6.addConstraint(Sketcher.Constraint("Horizontal", 36))
sketch6.addConstraint(Sketcher.Constraint("Vertical", 37))
sketch6.addConstraint(Sketcher.Constraint("Horizontal", 38))
sketch6.addConstraint(Sketcher.Constraint("Vertical", 39))
sketch6.addConstraint(Sketcher.Constraint("Horizontal", 40))
sketch6.addConstraint(Sketcher.Constraint("Vertical", 41))
sketch6.addConstraint(Sketcher.Constraint("Horizontal", 42))
sketch6.addConstraint(Sketcher.Constraint("Vertical", 43))
sketch6.addConstraint(Sketcher.Constraint("Horizontal", 44))
sketch6.addConstraint(Sketcher.Constraint("Vertical", 45))
sketch6.addConstraint(Sketcher.Constraint("Horizontal", 46))
sketch6.addConstraint(Sketcher.Constraint("Vertical", 47))
sketch6.addConstraint(Sketcher.Constraint("Horizontal", 48))
sketch6.addConstraint(Sketcher.Constraint("Vertical", 49))
sketch6.addConstraint(Sketcher.Constraint("Horizontal", 50))
sketch6.addConstraint(Sketcher.Constraint("Vertical", 51))
sketch6.addConstraint(Sketcher.Constraint("PointOnObject", 3, 2, -1))
sketch6.addConstraint(Sketcher.Constraint("PointOnObject", 7, 2, -1))
sketch6.addConstraint(Sketcher.Constraint("PointOnObject", 11, 2, -1))
sketch6.addConstraint(Sketcher.Constraint("PointOnObject", 16, 2, -2))
sketch6.addConstraint(Sketcher.Constraint("PointOnObject", 20, 2, -2))
sketch6.addConstraint(Sketcher.Constraint("PointOnObject", 24, 2, -2))
sketch6.addConstraint(Sketcher.Constraint("Horizontal", 2, 2, 5, 2))
sketch6.addConstraint(Sketcher.Constraint("Horizontal", 6, 2, 9, 2))
sketch6.addConstraint(Sketcher.Constraint("Horizontal", 10, 2, 13, 2))
sketch6.addConstraint(Sketcher.Constraint("Horizontal", 0, 2, 15, 2))
sketch6.addConstraint(Sketcher.Constraint("Horizontal", 28, 2, 31, 2))
sketch6.addConstraint(Sketcher.Constraint("Horizontal", 30, 2, 33, 2))
sketch6.addConstraint(Sketcher.Constraint("Horizontal", 32, 2, 35, 2))
sketch6.addConstraint(Sketcher.Constraint("Horizontal", 34, 2, 37, 2))
sketch6.addConstraint(Sketcher.Constraint("Horizontal", 36, 2, 39, 2))
sketch6.addConstraint(Sketcher.Constraint("Horizontal", 26, 2, 41, 2))
sketch6.addConstraint(Sketcher.Constraint("Horizontal", 24, 2, 43, 2))
sketch6.addConstraint(Sketcher.Constraint("Horizontal", 22, 2, 45, 2))
sketch6.addConstraint(Sketcher.Constraint("Horizontal", 20, 2, 47, 2))
sketch6.addConstraint(Sketcher.Constraint("Horizontal", 18, 2, 49, 2))
sketch6.addConstraint(Sketcher.Constraint("Vertical", 15, 2, 18, 2))
sketch6.addConstraint(Sketcher.Constraint("Vertical", 19, 2, 22, 2))
sketch6.addConstraint(Sketcher.Constraint("Vertical", 23, 2, 26, 2))
sketch6.addConstraint(Sketcher.Constraint("Vertical", 13, 2, 28, 2))
sketch6.addConstraint(Sketcher.Constraint("Vertical", 11, 2, 30, 2))
sketch6.addConstraint(Sketcher.Constraint("Vertical", 9, 2, 32, 2))
sketch6.addConstraint(Sketcher.Constraint("Vertical", 7, 2, 34, 2))
sketch6.addConstraint(Sketcher.Constraint("Vertical", 5, 2, 36, 2))
sketch6.addConstraint(Sketcher.Constraint("Vertical", 3, 2, 38, 2))
sketch6.addConstraint(Sketcher.Constraint("Vertical", 1, 2, 40, 2))
sketch6.addConstraint(Sketcher.Constraint("Vertical", 41, 2, 44, 2))
sketch6.addConstraint(Sketcher.Constraint("Vertical", 43, 2, 46, 2))
sketch6.addConstraint(Sketcher.Constraint("Vertical", 45, 2, 48, 2))
sketch6.addConstraint(Sketcher.Constraint("Vertical", 47, 2, 50, 2))
sketch6.addConstraint(Sketcher.Constraint("Equal", 4, 6))
sketch6.addConstraint(Sketcher.Constraint("Equal", 6, 8))
sketch6.addConstraint(Sketcher.Constraint("Equal", 8, 10))
sketch6.addConstraint(Sketcher.Constraint("Equal", 10, 12))
sketch6.addConstraint(Sketcher.Constraint("Equal", 2, 14))
sketch6.addConstraint(Sketcher.Constraint("Equal", 0, 16))
sketch6.addConstraint(Sketcher.Constraint("Equal", 40, 1))
sketch6.addConstraint(Sketcher.Constraint("Equal", 50, 3))
sketch6.addConstraint(Sketcher.Constraint("Equal", 38, 17))
sketch6.addConstraint(Sketcher.Constraint("Equal", 17, 19))
sketch6.addConstraint(Sketcher.Constraint("Equal", 19, 21))
sketch6.addConstraint(Sketcher.Constraint("Equal", 21, 23))
sketch6.addConstraint(Sketcher.Constraint("Equal", 23, 25))
sketch6.addConstraint(Sketcher.Constraint("Equal", 15, 27))
sketch6.addConstraint(Sketcher.Constraint("Equal", 13, 29))
sketch6.addConstraint(Sketcher.Constraint("DistanceX", 2, 2, 2, 1, Q("0.5 in")))
sketch6.addConstraint(Sketcher.Constraint("DistanceY", -1, 1, 29, 2, Q("4 in")))
sketch6.addConstraint(Sketcher.Constraint("DistanceX", 4, 2, 4, 1, Q("0.55 in")))
pad4 = body2.newObject("PartDesign::Pad", "Pad003")
pad4.Profile = sketch6
pad4.Length = Q("0.125 in")
pad4.Reversed = True
body3 = doc.addObject("PartDesign::Body", "Body002")

# Sketch on YZ plane
sketch7 = body3.newObject("Sketcher::SketchObject", "Sketch006")
sketch7.AttachmentSupport = (doc.getObject("YZ_Plane002"), [""])
sketch7.MapMode = "FlatFace"
sketch7.AttachmentOffset = App.Placement(V(0, 0, 24.75 * 25.4), App.Rotation())
add_polygon(sketch7, [(15.875, 98.425), (3.175, 98.425), (3.175, 85.725), (0, 85.725), (0, 71.755), (3.175, 71.755), (3.175, 57.785), (0, 57.785), (0, 43.815), (3.175, 43.815), (3.175, 29.845), (0, 29.845), (0, 15.875), (3.175, 15.875), (3.175, 3.175), (15.875, 3.175), (15.875, 0), (29.845, 0), (29.845, 3.175), (43.815, 3.175), (43.815, 0), (57.785, 0), (57.785, 3.175), (71.755, 3.175), (71.755, 0), (85.725, 0), (85.725, 3.175), (98.425, 3.175), (98.425, 15.875), (101.6, 15.875), (101.6, 29.845), (98.425, 29.845), (98.425, 43.815), (101.6, 43.815), (101.6, 57.785), (98.425, 57.785), (98.425, 71.755), (101.6, 71.755), (101.6, 85.725), (98.425, 85.725), (98.425, 98.425), (85.725, 98.425), (85.725, 101.6), (71.755, 101.6), (71.755, 98.425), (57.785, 98.425), (57.785, 101.6), (43.815, 101.6), (43.815, 98.425), (29.845, 98.425), (29.845, 101.6), (15.875, 101.6)])  # lines 0-51
add_polygon(sketch7, [(33.703335, 92.075), (92.075, 92.075), (92.075, 9.525), (33.703335, 9.525), (9.525, 33.703335), (9.525, 67.896665)])  # lines 52-57
sketch7.addConstraint(Sketcher.Constraint("Horizontal", 0))
sketch7.addConstraint(Sketcher.Constraint("Vertical", 1))
sketch7.addConstraint(Sketcher.Constraint("Horizontal", 2))
sketch7.addConstraint(Sketcher.Constraint("Vertical", 3))
sketch7.addConstraint(Sketcher.Constraint("Horizontal", 4))
sketch7.addConstraint(Sketcher.Constraint("Vertical", 5))
sketch7.addConstraint(Sketcher.Constraint("Horizontal", 6))
sketch7.addConstraint(Sketcher.Constraint("Vertical", 7))
sketch7.addConstraint(Sketcher.Constraint("Horizontal", 8))
sketch7.addConstraint(Sketcher.Constraint("Vertical", 9))
sketch7.addConstraint(Sketcher.Constraint("Horizontal", 10))
sketch7.addConstraint(Sketcher.Constraint("Vertical", 11))
sketch7.addConstraint(Sketcher.Constraint("Horizontal", 12))
sketch7.addConstraint(Sketcher.Constraint("Vertical", 13))
sketch7.addConstraint(Sketcher.Constraint("Horizontal", 14))
sketch7.addConstraint(Sketcher.Constraint("Vertical", 15))
sketch7.addConstraint(Sketcher.Constraint("Horizontal", 16))
sketch7.addConstraint(Sketcher.Constraint("Vertical", 17))
sketch7.addConstraint(Sketcher.Constraint("Horizontal", 18))
sketch7.addConstraint(Sketcher.Constraint("Vertical", 19))
sketch7.addConstraint(Sketcher.Constraint("Horizontal", 20))
sketch7.addConstraint(Sketcher.Constraint("Vertical", 21))
sketch7.addConstraint(Sketcher.Constraint("Horizontal", 22))
sketch7.addConstraint(Sketcher.Constraint("Vertical", 23))
sketch7.addConstraint(Sketcher.Constraint("Horizontal", 24))
sketch7.addConstraint(Sketcher.Constraint("Vertical", 25))
sketch7.addConstraint(Sketcher.Constraint("Horizontal", 26))
sketch7.addConstraint(Sketcher.Constraint("Vertical", 27))
sketch7.addConstraint(Sketcher.Constraint("Horizontal", 28))
sketch7.addConstraint(Sketcher.Constraint("Vertical", 29))
sketch7.addConstraint(Sketcher.Constraint("Horizontal", 30))
sketch7.addConstraint(Sketcher.Constraint("Vertical", 31))
sketch7.addConstraint(Sketcher.Constraint("Horizontal", 32))
sketch7.addConstraint(Sketcher.Constraint("Vertical", 33))
sketch7.addConstraint(Sketcher.Constraint("Horizontal", 34))
sketch7.addConstraint(Sketcher.Constraint("Vertical", 35))
sketch7.addConstraint(Sketcher.Constraint("Horizontal", 36))
sketch7.addConstraint(Sketcher.Constraint("Vertical", 37))
sketch7.addConstraint(Sketcher.Constraint("Horizontal", 38))
sketch7.addConstraint(Sketcher.Constraint("Vertical", 39))
sketch7.addConstraint(Sketcher.Constraint("Horizontal", 40))
sketch7.addConstraint(Sketcher.Constraint("Vertical", 41))
sketch7.addConstraint(Sketcher.Constraint("Horizontal", 42))
sketch7.addConstraint(Sketcher.Constraint("Vertical", 43))
sketch7.addConstraint(Sketcher.Constraint("Horizontal", 44))
sketch7.addConstraint(Sketcher.Constraint("Vertical", 45))
sketch7.addConstraint(Sketcher.Constraint("Horizontal", 46))
sketch7.addConstraint(Sketcher.Constraint("Vertical", 47))
sketch7.addConstraint(Sketcher.Constraint("Horizontal", 48))
sketch7.addConstraint(Sketcher.Constraint("Vertical", 49))
sketch7.addConstraint(Sketcher.Constraint("Horizontal", 50))
sketch7.addConstraint(Sketcher.Constraint("Vertical", 51))
sketch7.addConstraint(Sketcher.Constraint("Horizontal", 52))
sketch7.addConstraint(Sketcher.Constraint("Vertical", 53))
sketch7.addConstraint(Sketcher.Constraint("Horizontal", 54))
sketch7.addConstraint(Sketcher.Constraint("Vertical", 56))
sketch7.addConstraint(Sketcher.Constraint("PointOnObject", 2, 2, -2))
sketch7.addConstraint(Sketcher.Constraint("PointOnObject", 6, 2, -2))
sketch7.addConstraint(Sketcher.Constraint("PointOnObject", 10, 2, -2))
sketch7.addConstraint(Sketcher.Constraint("PointOnObject", 15, 2, -1))
sketch7.addConstraint(Sketcher.Constraint("PointOnObject", 19, 2, -1))
sketch7.addConstraint(Sketcher.Constraint("PointOnObject", 23, 2, -1))
sketch7.addConstraint(Sketcher.Constraint("Perpendicular", 55, 57))
sketch7.addConstraint(Sketcher.Constraint("Horizontal", 14, 2, 17, 2))
sketch7.addConstraint(Sketcher.Constraint("Horizontal", 18, 2, 21, 2))
sketch7.addConstraint(Sketcher.Constraint("Horizontal", 22, 2, 25, 2))
sketch7.addConstraint(Sketcher.Constraint("Horizontal", 12, 2, 27, 2))
sketch7.addConstraint(Sketcher.Constraint("Horizontal", 10, 2, 29, 2))
sketch7.addConstraint(Sketcher.Constraint("Horizontal", 8, 2, 31, 2))
sketch7.addConstraint(Sketcher.Constraint("Horizontal", 6, 2, 33, 2))
sketch7.addConstraint(Sketcher.Constraint("Horizontal", 4, 2, 35, 2))
sketch7.addConstraint(Sketcher.Constraint("Horizontal", 2, 2, 37, 2))
sketch7.addConstraint(Sketcher.Constraint("Horizontal", 0, 2, 39, 2))
sketch7.addConstraint(Sketcher.Constraint("Horizontal", 40, 2, 43, 2))
sketch7.addConstraint(Sketcher.Constraint("Horizontal", 42, 2, 45, 2))
sketch7.addConstraint(Sketcher.Constraint("Horizontal", 44, 2, 47, 2))
sketch7.addConstraint(Sketcher.Constraint("Horizontal", 46, 2, 49, 2))
sketch7.addConstraint(Sketcher.Constraint("Vertical", 1, 2, 4, 2))
sketch7.addConstraint(Sketcher.Constraint("Vertical", 5, 2, 8, 2))
sketch7.addConstraint(Sketcher.Constraint("Vertical", 9, 2, 12, 2))
sketch7.addConstraint(Sketcher.Constraint("Vertical", 27, 2, 30, 2))
sketch7.addConstraint(Sketcher.Constraint("Vertical", 29, 2, 32, 2))
sketch7.addConstraint(Sketcher.Constraint("Vertical", 31, 2, 34, 2))
sketch7.addConstraint(Sketcher.Constraint("Vertical", 33, 2, 36, 2))
sketch7.addConstraint(Sketcher.Constraint("Vertical", 35, 2, 38, 2))
sketch7.addConstraint(Sketcher.Constraint("Vertical", 25, 2, 40, 2))
sketch7.addConstraint(Sketcher.Constraint("Vertical", 23, 2, 42, 2))
sketch7.addConstraint(Sketcher.Constraint("Vertical", 21, 2, 44, 2))
sketch7.addConstraint(Sketcher.Constraint("Vertical", 19, 2, 46, 2))
sketch7.addConstraint(Sketcher.Constraint("Vertical", 17, 2, 48, 2))
sketch7.addConstraint(Sketcher.Constraint("Vertical", 15, 2, 50, 2))
sketch7.addConstraint(Sketcher.Constraint("Vertical", 54, 2, 57, 2))
sketch7.addConstraint(Sketcher.Constraint("Equal", 16, 18))
sketch7.addConstraint(Sketcher.Constraint("Equal", 18, 20))
sketch7.addConstraint(Sketcher.Constraint("Equal", 20, 22))
sketch7.addConstraint(Sketcher.Constraint("Equal", 22, 24))
sketch7.addConstraint(Sketcher.Constraint("Equal", 14, 26))
sketch7.addConstraint(Sketcher.Constraint("Equal", 12, 28))
sketch7.addConstraint(Sketcher.Constraint("Equal", 40, 1))
sketch7.addConstraint(Sketcher.Constraint("Equal", 50, 3))
sketch7.addConstraint(Sketcher.Constraint("Equal", 3, 5))
sketch7.addConstraint(Sketcher.Constraint("Equal", 5, 7))
sketch7.addConstraint(Sketcher.Constraint("Equal", 7, 9))
sketch7.addConstraint(Sketcher.Constraint("Equal", 9, 11))
sketch7.addConstraint(Sketcher.Constraint("Equal", 1, 13))
sketch7.addConstraint(Sketcher.Constraint("Equal", 38, 15))
sketch7.addConstraint(Sketcher.Constraint("Equal", 25, 41))
sketch7.addConstraint(Sketcher.Constraint("Equal", 55, 57))
sketch7.addConstraint(Sketcher.Constraint("DistanceX", 0, 2, 0, 1, Q("0.5 in")))
sketch7.addConstraint(Sketcher.Constraint("DistanceX", -1, 1, 28, 2, Q("4 in")))
sketch7.addConstraint(Sketcher.Constraint("DistanceX", 16, 1, 16, 2, Q("0.55 in")))
sketch7.addConstraint(Sketcher.Constraint("DistanceY", 53, 2, 53, 1, Q("3.25 in")))
sketch7.addConstraint(Sketcher.Constraint("DistanceX", 52, 2, 39, 2, Q("0.25 in")))
sketch7.addConstraint(Sketcher.Constraint("DistanceY", 52, 2, 39, 2, Q("0.25 in")))
sketch7.addConstraint(Sketcher.Constraint("DistanceX", 9, 2, 55, 2, Q("0.25 in")))
sketch7.addConstraint(Sketcher.Constraint("DistanceY", 56, 1, 56, 2, Q("34.19333 mm")))
pad5 = body3.newObject("PartDesign::Pad", "Pad004")
pad5.Profile = sketch7
pad5.Length = Q("0.125 in")

doc.recompute()
